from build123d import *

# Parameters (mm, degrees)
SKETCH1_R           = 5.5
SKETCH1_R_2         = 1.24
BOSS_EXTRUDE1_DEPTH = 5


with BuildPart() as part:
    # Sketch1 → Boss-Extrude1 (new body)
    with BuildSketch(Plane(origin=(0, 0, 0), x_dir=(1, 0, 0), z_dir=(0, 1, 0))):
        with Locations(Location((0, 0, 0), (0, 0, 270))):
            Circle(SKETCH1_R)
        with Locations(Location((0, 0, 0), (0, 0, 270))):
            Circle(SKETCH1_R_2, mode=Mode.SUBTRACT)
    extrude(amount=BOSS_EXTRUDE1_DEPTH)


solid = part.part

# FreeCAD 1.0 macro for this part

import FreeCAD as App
import Part
import Sketcher

doc = App.newDocument("Part")
body = doc.addObject("PartDesign::Body", "Body")

# Sketch on XZ plane
sketch1 = body.newObject("Sketcher::SketchObject", "Sketch")
sketch1.AttachmentSupport = (doc.getObject("XZ_Plane"), [""])
sketch1.MapMode = "FlatFace"
sketch1.addGeometry([
    Part.Circle(App.Vector(0, 0, 0), App.Vector(0, 0, 1), 5.5),
    Part.Circle(App.Vector(0, 0, 0), App.Vector(0, 0, 1), 1.2),
], False)
sketch1.addConstraint([
    Sketcher.Constraint("Coincident", 0, 3, -1, 1),
    Sketcher.Constraint("Coincident", 1, 3, -1, 1),
    Sketcher.Constraint("Diameter", 0, 11.0),
    Sketcher.Constraint("Diameter", 1, 2.48),
])
pad1 = body.newObject("PartDesign::Pad", "Pad")
pad1.Profile = sketch1
pad1.Length = 5
pad1.Reversed = True

doc.recompute()
